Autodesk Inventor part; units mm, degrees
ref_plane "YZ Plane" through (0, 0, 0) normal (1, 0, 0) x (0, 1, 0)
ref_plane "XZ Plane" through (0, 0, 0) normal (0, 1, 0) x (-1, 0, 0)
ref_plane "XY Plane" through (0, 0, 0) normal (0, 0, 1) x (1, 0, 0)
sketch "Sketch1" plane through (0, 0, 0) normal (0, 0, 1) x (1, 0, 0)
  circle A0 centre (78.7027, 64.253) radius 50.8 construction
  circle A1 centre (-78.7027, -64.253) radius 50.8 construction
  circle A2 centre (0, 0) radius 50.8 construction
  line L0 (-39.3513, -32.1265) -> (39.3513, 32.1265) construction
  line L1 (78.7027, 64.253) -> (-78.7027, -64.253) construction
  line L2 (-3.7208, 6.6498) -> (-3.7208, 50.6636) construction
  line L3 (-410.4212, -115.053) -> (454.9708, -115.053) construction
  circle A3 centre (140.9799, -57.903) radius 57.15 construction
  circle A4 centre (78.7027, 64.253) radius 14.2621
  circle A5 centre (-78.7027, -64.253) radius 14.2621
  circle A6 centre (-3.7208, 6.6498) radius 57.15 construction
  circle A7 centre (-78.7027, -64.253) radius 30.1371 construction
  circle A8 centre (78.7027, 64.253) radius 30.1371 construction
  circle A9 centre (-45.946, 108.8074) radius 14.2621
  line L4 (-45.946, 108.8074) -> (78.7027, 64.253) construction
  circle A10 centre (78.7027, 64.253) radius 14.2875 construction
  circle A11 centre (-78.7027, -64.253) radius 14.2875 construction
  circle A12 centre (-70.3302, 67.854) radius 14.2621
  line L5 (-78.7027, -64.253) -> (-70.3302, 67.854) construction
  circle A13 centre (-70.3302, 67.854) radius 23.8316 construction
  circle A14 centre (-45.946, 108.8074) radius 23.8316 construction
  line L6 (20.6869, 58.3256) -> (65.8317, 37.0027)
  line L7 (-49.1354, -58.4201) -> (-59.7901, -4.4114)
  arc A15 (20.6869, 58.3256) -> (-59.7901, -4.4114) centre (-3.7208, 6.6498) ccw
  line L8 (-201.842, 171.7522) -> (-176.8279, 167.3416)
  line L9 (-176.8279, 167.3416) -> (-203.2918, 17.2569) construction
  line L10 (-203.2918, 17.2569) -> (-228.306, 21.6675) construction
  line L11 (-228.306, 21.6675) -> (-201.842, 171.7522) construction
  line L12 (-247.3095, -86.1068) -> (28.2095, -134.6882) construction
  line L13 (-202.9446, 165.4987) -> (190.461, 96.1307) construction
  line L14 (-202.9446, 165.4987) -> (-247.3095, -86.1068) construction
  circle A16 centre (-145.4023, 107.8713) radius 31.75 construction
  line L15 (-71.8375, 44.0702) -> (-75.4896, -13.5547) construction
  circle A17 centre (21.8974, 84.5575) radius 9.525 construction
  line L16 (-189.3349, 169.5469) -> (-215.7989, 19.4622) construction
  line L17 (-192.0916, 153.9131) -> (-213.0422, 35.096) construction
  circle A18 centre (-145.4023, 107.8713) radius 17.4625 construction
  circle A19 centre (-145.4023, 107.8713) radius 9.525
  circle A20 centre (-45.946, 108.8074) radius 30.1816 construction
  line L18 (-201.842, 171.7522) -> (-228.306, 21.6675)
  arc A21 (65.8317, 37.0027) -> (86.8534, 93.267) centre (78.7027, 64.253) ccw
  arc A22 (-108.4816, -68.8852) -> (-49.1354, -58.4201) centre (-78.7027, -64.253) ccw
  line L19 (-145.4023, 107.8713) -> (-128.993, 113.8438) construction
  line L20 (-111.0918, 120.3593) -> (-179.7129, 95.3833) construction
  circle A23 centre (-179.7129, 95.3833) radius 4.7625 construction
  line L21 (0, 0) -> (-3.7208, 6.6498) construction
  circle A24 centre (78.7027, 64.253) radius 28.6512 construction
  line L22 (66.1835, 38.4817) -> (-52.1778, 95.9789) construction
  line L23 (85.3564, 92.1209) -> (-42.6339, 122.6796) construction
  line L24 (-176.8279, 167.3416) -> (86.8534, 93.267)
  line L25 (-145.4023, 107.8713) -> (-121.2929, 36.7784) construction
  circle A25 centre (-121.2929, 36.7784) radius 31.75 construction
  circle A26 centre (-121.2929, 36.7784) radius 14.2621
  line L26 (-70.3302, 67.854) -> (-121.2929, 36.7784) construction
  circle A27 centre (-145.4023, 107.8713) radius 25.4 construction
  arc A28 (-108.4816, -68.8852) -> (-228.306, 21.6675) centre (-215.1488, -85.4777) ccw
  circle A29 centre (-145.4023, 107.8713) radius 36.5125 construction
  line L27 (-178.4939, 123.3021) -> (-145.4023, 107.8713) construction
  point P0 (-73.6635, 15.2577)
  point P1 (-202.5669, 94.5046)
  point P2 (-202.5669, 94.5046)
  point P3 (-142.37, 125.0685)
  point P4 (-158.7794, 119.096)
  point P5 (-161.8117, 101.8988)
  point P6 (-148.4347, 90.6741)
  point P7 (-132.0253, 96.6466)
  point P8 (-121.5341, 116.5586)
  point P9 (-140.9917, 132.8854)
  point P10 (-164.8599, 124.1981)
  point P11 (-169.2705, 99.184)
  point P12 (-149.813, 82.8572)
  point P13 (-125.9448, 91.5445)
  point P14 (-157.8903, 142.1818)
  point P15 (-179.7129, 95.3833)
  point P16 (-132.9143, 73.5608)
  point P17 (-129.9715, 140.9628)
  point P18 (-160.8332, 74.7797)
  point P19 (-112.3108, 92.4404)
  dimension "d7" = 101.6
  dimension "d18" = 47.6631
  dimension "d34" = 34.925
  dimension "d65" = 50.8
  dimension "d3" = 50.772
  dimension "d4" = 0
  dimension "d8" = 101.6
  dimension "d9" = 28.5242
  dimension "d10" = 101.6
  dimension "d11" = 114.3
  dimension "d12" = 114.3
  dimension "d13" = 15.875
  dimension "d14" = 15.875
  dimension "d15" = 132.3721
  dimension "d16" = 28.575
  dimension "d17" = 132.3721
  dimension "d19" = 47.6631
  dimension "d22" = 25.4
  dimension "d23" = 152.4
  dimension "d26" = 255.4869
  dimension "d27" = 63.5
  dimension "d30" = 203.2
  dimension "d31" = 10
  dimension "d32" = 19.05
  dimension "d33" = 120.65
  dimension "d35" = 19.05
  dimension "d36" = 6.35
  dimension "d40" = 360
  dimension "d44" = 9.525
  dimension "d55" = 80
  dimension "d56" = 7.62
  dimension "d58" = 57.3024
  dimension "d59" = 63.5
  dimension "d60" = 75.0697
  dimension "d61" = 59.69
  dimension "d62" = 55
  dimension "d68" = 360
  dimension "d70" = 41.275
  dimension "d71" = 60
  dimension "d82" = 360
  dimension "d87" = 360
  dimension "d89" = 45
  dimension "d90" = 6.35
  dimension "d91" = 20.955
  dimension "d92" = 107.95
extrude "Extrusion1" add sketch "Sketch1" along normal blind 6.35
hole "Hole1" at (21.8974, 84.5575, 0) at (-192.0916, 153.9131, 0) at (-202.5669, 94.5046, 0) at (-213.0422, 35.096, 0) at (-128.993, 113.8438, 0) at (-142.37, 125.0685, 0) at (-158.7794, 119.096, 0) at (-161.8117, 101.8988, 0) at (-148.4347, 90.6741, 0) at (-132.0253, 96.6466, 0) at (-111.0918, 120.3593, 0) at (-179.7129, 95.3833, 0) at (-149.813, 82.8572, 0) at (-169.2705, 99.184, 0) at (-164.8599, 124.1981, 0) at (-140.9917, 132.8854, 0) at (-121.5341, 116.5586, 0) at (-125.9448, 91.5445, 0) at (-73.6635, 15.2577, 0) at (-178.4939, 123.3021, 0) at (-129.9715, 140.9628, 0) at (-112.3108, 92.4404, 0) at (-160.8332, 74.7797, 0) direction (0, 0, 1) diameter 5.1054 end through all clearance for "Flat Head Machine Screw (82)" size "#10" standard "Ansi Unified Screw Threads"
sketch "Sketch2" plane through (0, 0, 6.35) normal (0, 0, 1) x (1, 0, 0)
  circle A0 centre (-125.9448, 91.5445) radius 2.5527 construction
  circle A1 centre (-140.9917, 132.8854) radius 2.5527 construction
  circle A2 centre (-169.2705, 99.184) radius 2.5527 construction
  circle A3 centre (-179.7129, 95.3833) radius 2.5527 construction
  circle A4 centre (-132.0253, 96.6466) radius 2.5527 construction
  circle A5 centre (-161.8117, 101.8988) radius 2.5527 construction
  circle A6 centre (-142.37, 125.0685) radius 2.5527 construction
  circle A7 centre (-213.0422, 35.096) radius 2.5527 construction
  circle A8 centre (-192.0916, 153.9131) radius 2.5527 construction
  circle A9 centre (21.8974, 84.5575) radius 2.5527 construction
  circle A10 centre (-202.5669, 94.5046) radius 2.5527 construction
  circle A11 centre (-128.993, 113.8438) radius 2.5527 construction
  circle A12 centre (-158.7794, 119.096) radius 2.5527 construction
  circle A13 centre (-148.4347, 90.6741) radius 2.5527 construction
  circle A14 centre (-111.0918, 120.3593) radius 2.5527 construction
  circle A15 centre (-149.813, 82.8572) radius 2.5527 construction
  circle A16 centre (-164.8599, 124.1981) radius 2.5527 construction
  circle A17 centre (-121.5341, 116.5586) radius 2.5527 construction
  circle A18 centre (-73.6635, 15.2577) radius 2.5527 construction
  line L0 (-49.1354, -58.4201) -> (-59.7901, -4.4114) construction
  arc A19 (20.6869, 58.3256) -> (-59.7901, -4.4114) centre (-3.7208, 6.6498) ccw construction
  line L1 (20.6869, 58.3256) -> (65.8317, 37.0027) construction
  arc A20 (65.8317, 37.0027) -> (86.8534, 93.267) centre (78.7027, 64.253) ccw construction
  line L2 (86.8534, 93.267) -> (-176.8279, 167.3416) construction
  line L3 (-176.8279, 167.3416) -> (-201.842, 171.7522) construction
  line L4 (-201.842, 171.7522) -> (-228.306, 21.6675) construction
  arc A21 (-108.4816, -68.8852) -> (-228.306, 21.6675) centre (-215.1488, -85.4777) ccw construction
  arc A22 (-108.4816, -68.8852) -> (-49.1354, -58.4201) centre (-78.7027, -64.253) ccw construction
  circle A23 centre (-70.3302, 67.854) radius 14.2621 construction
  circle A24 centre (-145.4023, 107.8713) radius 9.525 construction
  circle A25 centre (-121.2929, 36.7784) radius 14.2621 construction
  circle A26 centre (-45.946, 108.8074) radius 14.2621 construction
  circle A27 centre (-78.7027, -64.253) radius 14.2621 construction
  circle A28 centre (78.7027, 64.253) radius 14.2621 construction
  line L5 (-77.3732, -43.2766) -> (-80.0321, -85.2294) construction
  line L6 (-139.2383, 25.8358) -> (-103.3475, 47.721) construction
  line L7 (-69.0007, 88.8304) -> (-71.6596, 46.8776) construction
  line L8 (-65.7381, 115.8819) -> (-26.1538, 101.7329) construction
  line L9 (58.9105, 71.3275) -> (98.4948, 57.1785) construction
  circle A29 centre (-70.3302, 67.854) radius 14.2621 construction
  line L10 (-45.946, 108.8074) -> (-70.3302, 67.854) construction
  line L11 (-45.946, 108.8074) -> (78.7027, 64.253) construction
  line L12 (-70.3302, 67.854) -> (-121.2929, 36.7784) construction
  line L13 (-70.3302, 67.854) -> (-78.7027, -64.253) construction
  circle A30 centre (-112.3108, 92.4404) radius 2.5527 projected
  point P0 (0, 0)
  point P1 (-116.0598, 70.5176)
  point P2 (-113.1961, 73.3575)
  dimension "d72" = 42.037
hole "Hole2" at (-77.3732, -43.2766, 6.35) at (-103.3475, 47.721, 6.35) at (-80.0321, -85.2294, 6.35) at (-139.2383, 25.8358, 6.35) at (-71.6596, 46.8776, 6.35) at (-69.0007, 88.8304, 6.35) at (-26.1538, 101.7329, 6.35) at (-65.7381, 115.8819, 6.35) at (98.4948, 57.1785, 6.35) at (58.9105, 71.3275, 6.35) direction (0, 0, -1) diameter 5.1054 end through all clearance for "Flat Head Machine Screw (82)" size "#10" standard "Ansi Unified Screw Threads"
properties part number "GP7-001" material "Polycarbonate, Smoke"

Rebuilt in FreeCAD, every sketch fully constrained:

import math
import FreeCAD as App
import Part
import Sketcher
from FreeCAD import Vector
Q = App.Units.Quantity

doc = App.newDocument("Part")
body = doc.addObject("PartDesign::Body", "Body")

# Sketch on XY plane
sketch1 = body.newObject("Sketcher::SketchObject", "Sketch")
sketch1.AttachmentSupport = (doc.getObject("XY_Plane"), [""])
sketch1.MapMode = "FlatFace"
sketch1.addGeometry([
    Part.ArcOfCircle(Part.Circle(Vector(-3.7208, 6.6498, 0), Vector(0, 0, 1), 57.15), math.radians(64.717528), math.radians(191.159855)),  # 0
    Part.LineSegment(Vector(20.6869, 58.3256, 0), Vector(65.8317, 37.0027, 0)),  # 1
    Part.ArcOfCircle(Part.Circle(Vector(78.7027, 64.253, 0), Vector(0, 0, 1), 30.1371), math.radians(-115.282541), math.radians(74.308726)),  # 2
    Part.LineSegment(Vector(86.8534, 93.267, 0), Vector(-176.8279, 167.3416, 0)),  # 3
    Part.LineSegment(Vector(-176.8279, 167.3416, 0), Vector(-201.842, 171.7522, 0)),  # 4
    Part.LineSegment(Vector(-201.842, 171.7522, 0), Vector(-228.306, 21.6675, 0)),  # 5
    Part.ArcOfCircle(Part.Circle(Vector(-215.1488, -85.4777, 0), Vector(0, 0, 1), 107.950001), math.radians(8.841722), math.radians(97.00075)),  # 6
    Part.ArcOfCircle(Part.Circle(Vector(-78.7027, -64.253, 0), Vector(0, 0, 1), 30.1371), math.radians(-171.158323), math.radians(11.159748)),  # 7
    Part.LineSegment(Vector(-49.1354, -58.4201, 0), Vector(-59.7901, -4.4114, 0)),  # 8
    Part.Circle(Vector(-78.7027, -64.253, 0), Vector(0, 0, 1), 14.2621),  # 9
    Part.Circle(Vector(-121.2929, 36.7784, 0), Vector(0, 0, 1), 14.2621),  # 10
    Part.Circle(Vector(-70.3302, 67.854, 0), Vector(0, 0, 1), 14.2621),  # 11
    Part.Circle(Vector(-145.4023, 107.8713, 0), Vector(0, 0, 1), 9.525),  # 12
    Part.Circle(Vector(78.7027, 64.253, 0), Vector(0, 0, 1), 14.2621),  # 13
    Part.Circle(Vector(-45.946, 108.8074, 0), Vector(0, 0, 1), 14.2621),  # 14
], False)
sketch1.addConstraint([
    Sketcher.Constraint("Tangent", 0, 1, 1, 1),
    Sketcher.Constraint("Tangent", 1, 2, 2, 1),
    Sketcher.Constraint("Tangent", 2, 2, 3, 1),
    Sketcher.Constraint("Coincident", 3, 2, 4, 1),
    Sketcher.Constraint("Coincident", 4, 2, 5, 1),
    Sketcher.Constraint("Coincident", 5, 2, 6, 2),
    Sketcher.Constraint("Tangent", 6, 1, 7, 1),
    Sketcher.Constraint("Tangent", 7, 2, 8, 1),
    Sketcher.Constraint("Tangent", 8, 2, 0, 2),
    Sketcher.Constraint("Coincident", 9, 3, 7, 3),
    Sketcher.Constraint("Coincident", 13, 3, 2, 3),
    Sketcher.Constraint("Equal", 2, 7),
    Sketcher.Constraint("Equal", 9, 10),
    Sketcher.Constraint("Equal", 10, 11),
    Sketcher.Constraint("Equal", 11, 13),
    Sketcher.Constraint("Equal", 13, 14),
    Sketcher.Constraint("Symmetric", 2, 3, 7, 3, -1, 1),
    Sketcher.Constraint("Perpendicular", 4, 5),
    Sketcher.Constraint("Diameter", 12, Q("0.75 in")),
    Sketcher.Constraint("Radius", 0, Q("2.25 in")),
    Sketcher.Constraint("Radius", 6, Q("4.25 in")),
    Sketcher.Constraint("Distance", 4, Q("1 in")),
    Sketcher.Constraint("Distance", 5, Q("6 in")),
    Sketcher.Constraint("Diameter", 9, Q("1.123 in")),
    Sketcher.Constraint("Angle", 4, Q("170.0001 deg")),
    Sketcher.Constraint("DistanceY", 7, 2, -1, 1, Q("2.3 in")),
    Sketcher.Constraint("Radius", 2, Q("1.1865 in")),
    Sketcher.Constraint("Angle", 8, Q("101.1599 deg")),
    Sketcher.Constraint("DistanceX", 11, 3, 14, 3, Q("0.96 in")),
    Sketcher.Constraint("Distance", 3, Q("10.783 in")),
    Sketcher.Constraint("DistanceX", 12, 3, 0, 3, Q("5.578 in")),
    Sketcher.Constraint("DistanceY", 0, 3, 1, 2, Q("1.195 in")),
    Sketcher.Constraint("DistanceY", 12, 3, 4, 2, Q("2.515 in")),
    Sketcher.Constraint("DistanceX", 5, 2, 6, 3, Q("0.518 in")),
    Sketcher.Constraint("Distance", 8, Q("2.1673 in")),
    Sketcher.Constraint("DistanceX", 10, 3, -1, 1, Q("4.7753 in")),
    Sketcher.Constraint("DistanceX", 11, 3, -1, 1, Q("2.7689 in")),
    Sketcher.Constraint("DistanceY", 2, 3, 14, 3, Q("1.7541 in")),
    Sketcher.Constraint("DistanceY", 8, 2, 11, 3, Q("2.8451 in")),
    Sketcher.Constraint("DistanceY", -1, 1, 10, 3, 36.7784),
])
pad1 = body.newObject("PartDesign::Pad", "Pad")
pad1.Profile = sketch1
pad1.Length = Q("0.25 in")

# Sketch on XY plane
sketch2 = body.newObject("Sketcher::SketchObject", "Sketch001")
sketch2.AttachmentSupport = (doc.getObject("XY_Plane"), [""])
sketch2.MapMode = "FlatFace"
sketch2.addGeometry([
    Part.Circle(Vector(21.8974, 84.5575, 0), Vector(0, 0, 1), 2.5527),  # 0
    Part.Circle(Vector(-192.0916, 153.9131, 0), Vector(0, 0, 1), 2.5527),  # 1
    Part.Circle(Vector(-202.5669, 94.5046, 0), Vector(0, 0, 1), 2.5527),  # 2
    Part.Circle(Vector(-213.0422, 35.096, 0), Vector(0, 0, 1), 2.5527),  # 3
    Part.Circle(Vector(-128.993, 113.8438, 0), Vector(0, 0, 1), 2.5527),  # 4
    Part.Circle(Vector(-142.37, 125.0685, 0), Vector(0, 0, 1), 2.5527),  # 5
    Part.Circle(Vector(-158.7794, 119.096, 0), Vector(0, 0, 1), 2.5527),  # 6
    Part.Circle(Vector(-161.8117, 101.8988, 0), Vector(0, 0, 1), 2.5527),  # 7
    Part.Circle(Vector(-148.4347, 90.6741, 0), Vector(0, 0, 1), 2.5527),  # 8
    Part.Circle(Vector(-132.0253, 96.6466, 0), Vector(0, 0, 1), 2.5527),  # 9
    Part.Circle(Vector(-111.0918, 120.3593, 0), Vector(0, 0, 1), 2.5527),  # 10
    Part.Circle(Vector(-179.7129, 95.3833, 0), Vector(0, 0, 1), 2.5527),  # 11
    Part.Circle(Vector(-149.813, 82.8572, 0), Vector(0, 0, 1), 2.5527),  # 12
    Part.Circle(Vector(-169.2705, 99.184, 0), Vector(0, 0, 1), 2.5527),  # 13
    Part.Circle(Vector(-164.8599, 124.1981, 0), Vector(0, 0, 1), 2.5527),  # 14
    Part.Circle(Vector(-140.9917, 132.8854, 0), Vector(0, 0, 1), 2.5527),  # 15
    Part.Circle(Vector(-121.5341, 116.5586, 0), Vector(0, 0, 1), 2.5527),  # 16
    Part.Circle(Vector(-125.9448, 91.5445, 0), Vector(0, 0, 1), 2.5527),  # 17
    Part.Circle(Vector(-73.6635, 15.2577, 0), Vector(0, 0, 1), 2.5527),  # 18
    Part.Circle(Vector(-178.4939, 123.3021, 0), Vector(0, 0, 1), 2.5527),  # 19
    Part.Circle(Vector(-129.9715, 140.9628, 0), Vector(0, 0, 1), 2.5527),  # 20
    Part.Circle(Vector(-112.3108, 92.4404, 0), Vector(0, 0, 1), 2.5527),  # 21
    Part.Circle(Vector(-160.8332, 74.7797, 0), Vector(0, 0, 1), 2.5527),  # 22
], False)
sketch2.addConstraint([
    Sketcher.Constraint("Equal", 0, 1),
    Sketcher.Constraint("Equal", 1, 2),
    Sketcher.Constraint("Equal", 2, 3),
    Sketcher.Constraint("Equal", 3, 4),
    Sketcher.Constraint("Equal", 4, 5),
    Sketcher.Constraint("Equal", 5, 6),
    Sketcher.Constraint("Equal", 6, 7),
    Sketcher.Constraint("Equal", 7, 8),
    Sketcher.Constraint("Equal", 8, 9),
    Sketcher.Constraint("Equal", 9, 10),
    Sketcher.Constraint("Equal", 10, 11),
    Sketcher.Constraint("Equal", 11, 12),
    Sketcher.Constraint("Equal", 12, 13),
    Sketcher.Constraint("Equal", 13, 14),
    Sketcher.Constraint("Equal", 14, 15),
    Sketcher.Constraint("Equal", 15, 16),
    Sketcher.Constraint("Equal", 16, 17),
    Sketcher.Constraint("Equal", 17, 18),
    Sketcher.Constraint("Equal", 18, 19),
    Sketcher.Constraint("Equal", 19, 20),
    Sketcher.Constraint("Equal", 20, 21),
    Sketcher.Constraint("Equal", 21, 22),
    Sketcher.Constraint("Diameter", 0, Q("0.201 in")),
    Sketcher.Constraint("DistanceX", 14, 3, 7, 3, Q("0.12 in")),
    Sketcher.Constraint("DistanceX", 4, 3, 17, 3, Q("0.12 in")),
    Sketcher.Constraint("DistanceX", 20, 3, -1, 1, Q("5.117 in")),
    Sketcher.Constraint("DistanceY", 0, 3, 4, 3, Q("1.153 in")),
    Sketcher.Constraint("DistanceX", 12, 3, 18, 3, Q("2.998 in")),
    Sketcher.Constraint("DistanceX", 11, 3, 19, 3, Q("0.048 in")),
    Sketcher.Constraint("DistanceY", 15, 3, 20, 3, Q("0.318 in")),
    Sketcher.Constraint("DistanceX", 21, 3, 10, 3, Q("0.048 in")),
    Sketcher.Constraint("DistanceY", 22, 3, 12, 3, Q("0.318 in")),
    Sketcher.Constraint("DistanceX", -1, 1, 0, 3, Q("0.8621 in")),
    Sketcher.Constraint("DistanceX", 3, 3, -1, 1, Q("8.3875 in")),
    Sketcher.Constraint("DistanceX", 10, 3, -1, 1, Q("4.3737 in")),
    Sketcher.Constraint("DistanceX", 11, 3, -1, 1, Q("7.0753 in")),
    Sketcher.Constraint("DistanceY", -1, 1, 12, 3, Q("3.2621 in")),
    Sketcher.Constraint("DistanceX", 13, 3, -1, 1, Q("6.6642 in")),
    Sketcher.Constraint("DistanceY", -1, 1, 14, 3, Q("4.8897 in")),
    Sketcher.Constraint("DistanceY", -1, 1, 15, 3, Q("5.2317 in")),
    Sketcher.Constraint("DistanceX", 16, 3, -1, 1, Q("4.7848 in")),
    Sketcher.Constraint("DistanceY", -1, 1, 18, 3, Q("0.6007 in")),
    Sketcher.Constraint("DistanceY", 3, 3, 0, 3, Q("1.9473 in")),
    Sketcher.Constraint("DistanceX", 1, 3, 4, 3, Q("2.4842 in")),
    Sketcher.Constraint("DistanceX", 2, 3, 4, 3, Q("2.8966 in")),
    Sketcher.Constraint("DistanceY", 2, 3, 5, 3, Q("1.2033 in")),
    Sketcher.Constraint("DistanceX", 6, 3, 4, 3, Q("1.1727 in")),
    Sketcher.Constraint("DistanceY", 7, 3, 5, 3, Q("0.9122 in")),
    Sketcher.Constraint("DistanceY", 7, 3, 1, 3, Q("2.0478 in")),
    Sketcher.Constraint("DistanceY", 8, 3, 4, 3, Q("0.9122 in")),
    Sketcher.Constraint("DistanceY", 8, 3, 5, 3, Q("1.3541 in")),
    Sketcher.Constraint("DistanceX", 2, 3, 8, 3, Q("2.1312 in")),
    Sketcher.Constraint("DistanceX", 7, 3, 9, 3, Q("1.1727 in")),
    Sketcher.Constraint("DistanceX", 6, 3, 9, 3, Q("1.0533 in")),
    Sketcher.Constraint("DistanceY", 10, 3, 5, 3, Q("0.1854 in")),
    Sketcher.Constraint("DistanceX", 8, 3, 10, 3, Q("1.4702 in")),
    Sketcher.Constraint("DistanceY", 2, 3, 11, 3, Q("0.0346 in")),
    Sketcher.Constraint("DistanceX", 12, 3, 9, 3, Q("0.7003 in")),
    Sketcher.Constraint("DistanceY", 12, 3, 9, 3, Q("0.5429 in")),
    Sketcher.Constraint("DistanceY", 13, 3, 14, 3, Q("0.9848 in")),
    Sketcher.Constraint("DistanceX", 6, 3, 15, 3, Q("0.7003 in")),
    Sketcher.Constraint("DistanceY", 6, 3, 15, 3, Q("0.5429 in")),
    Sketcher.Constraint("DistanceX", 5, 3, 16, 3, Q("0.8203 in")),
    Sketcher.Constraint("DistanceY", 17, 3, 16, 3, Q("0.9848 in")),
    Sketcher.Constraint("DistanceY", 6, 3, 19, 3, Q("0.1656 in")),
    Sketcher.Constraint("DistanceY", 16, 3, 20, 3, Q("0.9608 in")),
    Sketcher.Constraint("DistanceY", 21, 3, 9, 3, Q("0.1656 in")),
    Sketcher.Constraint("DistanceX", 11, 3, 22, 3, Q("0.7433 in")),
    Sketcher.Constraint("DistanceY", -1, 1, 0, 3, 84.5575),
])
doc.recompute()
hole = body.newObject("PartDesign::Hole", "Hole")
hole.Profile = sketch2
hole.ThreadType = "None"
hole.Diameter = Q("0.201 in")
hole.DepthType = "ThroughAll"
hole.Reversed = True

# Sketch on XY plane
sketch3 = body.newObject("Sketcher::SketchObject", "Sketch002")
sketch3.AttachmentSupport = (doc.getObject("XY_Plane"), [""])
sketch3.MapMode = "FlatFace"
sketch3.AttachmentOffset = App.Placement(Vector(0, 0, 0.25 * 25.4), App.Rotation())
sketch3.addGeometry([
    Part.Circle(Vector(-77.3732, -43.2766, 0), Vector(0, 0, 1), 2.5527),  # 0
    Part.Circle(Vector(-103.3475, 47.721, 0), Vector(0, 0, 1), 2.5527),  # 1
    Part.Circle(Vector(-80.0321, -85.2294, 0), Vector(0, 0, 1), 2.5527),  # 2
    Part.Circle(Vector(-139.2383, 25.8358, 0), Vector(0, 0, 1), 2.5527),  # 3
    Part.Circle(Vector(-71.6596, 46.8776, 0), Vector(0, 0, 1), 2.5527),  # 4
    Part.Circle(Vector(-69.0007, 88.8304, 0), Vector(0, 0, 1), 2.5527),  # 5
    Part.Circle(Vector(-26.1538, 101.7329, 0), Vector(0, 0, 1), 2.5527),  # 6
    Part.Circle(Vector(-65.7381, 115.8819, 0), Vector(0, 0, 1), 2.5527),  # 7
    Part.Circle(Vector(98.4948, 57.1785, 0), Vector(0, 0, 1), 2.5527),  # 8
    Part.Circle(Vector(58.9105, 71.3275, 0), Vector(0, 0, 1), 2.5527),  # 9
], False)
sketch3.addConstraint([
    Sketcher.Constraint("Equal", 0, 1),
    Sketcher.Constraint("Equal", 1, 2),
    Sketcher.Constraint("Equal", 2, 3),
    Sketcher.Constraint("Equal", 3, 4),
    Sketcher.Constraint("Equal", 4, 5),
    Sketcher.Constraint("Equal", 5, 6),
    Sketcher.Constraint("Equal", 6, 7),
    Sketcher.Constraint("Equal", 7, 8),
    Sketcher.Constraint("Equal", 8, 9),
    Sketcher.Constraint("Diameter", 0, Q("0.201 in")),
    Sketcher.Constraint("DistanceX", 4, 3, 8, 3, Q("6.699 in")),
    Sketcher.Constraint("DistanceX", 6, 3, 9, 3, Q("3.349 in")),
    Sketcher.Constraint("DistanceX", 0, 3, -1, 1, Q("3.0462 in")),
    Sketcher.Constraint("DistanceY", 0, 3, -1, 1, Q("1.7038 in")),
    Sketcher.Constraint("DistanceX", 1, 3, -1, 1, Q("4.0688 in")),
    Sketcher.Constraint("DistanceY", 2, 3, -1, 1, Q("3.3555 in")),
    Sketcher.Constraint("DistanceX", -1, 1, 9, 3, Q("2.3193 in")),
    Sketcher.Constraint("DistanceY", 4, 3, 1, 3, Q("0.0332 in")),
    Sketcher.Constraint("DistanceY", 3, 3, 5, 3, Q("2.4801 in")),
    Sketcher.Constraint("DistanceX", 2, 3, 5, 3, Q("0.4343 in")),
    Sketcher.Constraint("DistanceY", 4, 3, 7, 3, Q("2.7167 in")),
    Sketcher.Constraint("DistanceX", 3, 3, 7, 3, Q("2.8937 in")),
    Sketcher.Constraint("DistanceY", 8, 3, 6, 3, Q("1.7541 in")),
    Sketcher.Constraint("DistanceX", 5, 3, 8, 3, Q("6.5943 in")),
    Sketcher.Constraint("DistanceY", 9, 3, 5, 3, Q("0.6891 in")),
    Sketcher.Constraint("DistanceY", 9, 3, 7, 3, Q("1.7541 in")),
    Sketcher.Constraint("DistanceY", -1, 1, 1, 3, 47.721),
    Sketcher.Constraint("DistanceX", 2, 3, -1, 1, 80.032),
    Sketcher.Constraint("DistanceX", 3, 3, -1, 1, 139.2383),
    Sketcher.Constraint("DistanceY", -1, 1, 6, 3, 101.733),
])
doc.recompute()
hole2 = body.newObject("PartDesign::Hole", "Hole001")
hole2.Profile = sketch3
hole2.ThreadType = "None"
hole2.Diameter = Q("0.201 in")
hole2.DepthType = "ThroughAll"

doc.recompute()
